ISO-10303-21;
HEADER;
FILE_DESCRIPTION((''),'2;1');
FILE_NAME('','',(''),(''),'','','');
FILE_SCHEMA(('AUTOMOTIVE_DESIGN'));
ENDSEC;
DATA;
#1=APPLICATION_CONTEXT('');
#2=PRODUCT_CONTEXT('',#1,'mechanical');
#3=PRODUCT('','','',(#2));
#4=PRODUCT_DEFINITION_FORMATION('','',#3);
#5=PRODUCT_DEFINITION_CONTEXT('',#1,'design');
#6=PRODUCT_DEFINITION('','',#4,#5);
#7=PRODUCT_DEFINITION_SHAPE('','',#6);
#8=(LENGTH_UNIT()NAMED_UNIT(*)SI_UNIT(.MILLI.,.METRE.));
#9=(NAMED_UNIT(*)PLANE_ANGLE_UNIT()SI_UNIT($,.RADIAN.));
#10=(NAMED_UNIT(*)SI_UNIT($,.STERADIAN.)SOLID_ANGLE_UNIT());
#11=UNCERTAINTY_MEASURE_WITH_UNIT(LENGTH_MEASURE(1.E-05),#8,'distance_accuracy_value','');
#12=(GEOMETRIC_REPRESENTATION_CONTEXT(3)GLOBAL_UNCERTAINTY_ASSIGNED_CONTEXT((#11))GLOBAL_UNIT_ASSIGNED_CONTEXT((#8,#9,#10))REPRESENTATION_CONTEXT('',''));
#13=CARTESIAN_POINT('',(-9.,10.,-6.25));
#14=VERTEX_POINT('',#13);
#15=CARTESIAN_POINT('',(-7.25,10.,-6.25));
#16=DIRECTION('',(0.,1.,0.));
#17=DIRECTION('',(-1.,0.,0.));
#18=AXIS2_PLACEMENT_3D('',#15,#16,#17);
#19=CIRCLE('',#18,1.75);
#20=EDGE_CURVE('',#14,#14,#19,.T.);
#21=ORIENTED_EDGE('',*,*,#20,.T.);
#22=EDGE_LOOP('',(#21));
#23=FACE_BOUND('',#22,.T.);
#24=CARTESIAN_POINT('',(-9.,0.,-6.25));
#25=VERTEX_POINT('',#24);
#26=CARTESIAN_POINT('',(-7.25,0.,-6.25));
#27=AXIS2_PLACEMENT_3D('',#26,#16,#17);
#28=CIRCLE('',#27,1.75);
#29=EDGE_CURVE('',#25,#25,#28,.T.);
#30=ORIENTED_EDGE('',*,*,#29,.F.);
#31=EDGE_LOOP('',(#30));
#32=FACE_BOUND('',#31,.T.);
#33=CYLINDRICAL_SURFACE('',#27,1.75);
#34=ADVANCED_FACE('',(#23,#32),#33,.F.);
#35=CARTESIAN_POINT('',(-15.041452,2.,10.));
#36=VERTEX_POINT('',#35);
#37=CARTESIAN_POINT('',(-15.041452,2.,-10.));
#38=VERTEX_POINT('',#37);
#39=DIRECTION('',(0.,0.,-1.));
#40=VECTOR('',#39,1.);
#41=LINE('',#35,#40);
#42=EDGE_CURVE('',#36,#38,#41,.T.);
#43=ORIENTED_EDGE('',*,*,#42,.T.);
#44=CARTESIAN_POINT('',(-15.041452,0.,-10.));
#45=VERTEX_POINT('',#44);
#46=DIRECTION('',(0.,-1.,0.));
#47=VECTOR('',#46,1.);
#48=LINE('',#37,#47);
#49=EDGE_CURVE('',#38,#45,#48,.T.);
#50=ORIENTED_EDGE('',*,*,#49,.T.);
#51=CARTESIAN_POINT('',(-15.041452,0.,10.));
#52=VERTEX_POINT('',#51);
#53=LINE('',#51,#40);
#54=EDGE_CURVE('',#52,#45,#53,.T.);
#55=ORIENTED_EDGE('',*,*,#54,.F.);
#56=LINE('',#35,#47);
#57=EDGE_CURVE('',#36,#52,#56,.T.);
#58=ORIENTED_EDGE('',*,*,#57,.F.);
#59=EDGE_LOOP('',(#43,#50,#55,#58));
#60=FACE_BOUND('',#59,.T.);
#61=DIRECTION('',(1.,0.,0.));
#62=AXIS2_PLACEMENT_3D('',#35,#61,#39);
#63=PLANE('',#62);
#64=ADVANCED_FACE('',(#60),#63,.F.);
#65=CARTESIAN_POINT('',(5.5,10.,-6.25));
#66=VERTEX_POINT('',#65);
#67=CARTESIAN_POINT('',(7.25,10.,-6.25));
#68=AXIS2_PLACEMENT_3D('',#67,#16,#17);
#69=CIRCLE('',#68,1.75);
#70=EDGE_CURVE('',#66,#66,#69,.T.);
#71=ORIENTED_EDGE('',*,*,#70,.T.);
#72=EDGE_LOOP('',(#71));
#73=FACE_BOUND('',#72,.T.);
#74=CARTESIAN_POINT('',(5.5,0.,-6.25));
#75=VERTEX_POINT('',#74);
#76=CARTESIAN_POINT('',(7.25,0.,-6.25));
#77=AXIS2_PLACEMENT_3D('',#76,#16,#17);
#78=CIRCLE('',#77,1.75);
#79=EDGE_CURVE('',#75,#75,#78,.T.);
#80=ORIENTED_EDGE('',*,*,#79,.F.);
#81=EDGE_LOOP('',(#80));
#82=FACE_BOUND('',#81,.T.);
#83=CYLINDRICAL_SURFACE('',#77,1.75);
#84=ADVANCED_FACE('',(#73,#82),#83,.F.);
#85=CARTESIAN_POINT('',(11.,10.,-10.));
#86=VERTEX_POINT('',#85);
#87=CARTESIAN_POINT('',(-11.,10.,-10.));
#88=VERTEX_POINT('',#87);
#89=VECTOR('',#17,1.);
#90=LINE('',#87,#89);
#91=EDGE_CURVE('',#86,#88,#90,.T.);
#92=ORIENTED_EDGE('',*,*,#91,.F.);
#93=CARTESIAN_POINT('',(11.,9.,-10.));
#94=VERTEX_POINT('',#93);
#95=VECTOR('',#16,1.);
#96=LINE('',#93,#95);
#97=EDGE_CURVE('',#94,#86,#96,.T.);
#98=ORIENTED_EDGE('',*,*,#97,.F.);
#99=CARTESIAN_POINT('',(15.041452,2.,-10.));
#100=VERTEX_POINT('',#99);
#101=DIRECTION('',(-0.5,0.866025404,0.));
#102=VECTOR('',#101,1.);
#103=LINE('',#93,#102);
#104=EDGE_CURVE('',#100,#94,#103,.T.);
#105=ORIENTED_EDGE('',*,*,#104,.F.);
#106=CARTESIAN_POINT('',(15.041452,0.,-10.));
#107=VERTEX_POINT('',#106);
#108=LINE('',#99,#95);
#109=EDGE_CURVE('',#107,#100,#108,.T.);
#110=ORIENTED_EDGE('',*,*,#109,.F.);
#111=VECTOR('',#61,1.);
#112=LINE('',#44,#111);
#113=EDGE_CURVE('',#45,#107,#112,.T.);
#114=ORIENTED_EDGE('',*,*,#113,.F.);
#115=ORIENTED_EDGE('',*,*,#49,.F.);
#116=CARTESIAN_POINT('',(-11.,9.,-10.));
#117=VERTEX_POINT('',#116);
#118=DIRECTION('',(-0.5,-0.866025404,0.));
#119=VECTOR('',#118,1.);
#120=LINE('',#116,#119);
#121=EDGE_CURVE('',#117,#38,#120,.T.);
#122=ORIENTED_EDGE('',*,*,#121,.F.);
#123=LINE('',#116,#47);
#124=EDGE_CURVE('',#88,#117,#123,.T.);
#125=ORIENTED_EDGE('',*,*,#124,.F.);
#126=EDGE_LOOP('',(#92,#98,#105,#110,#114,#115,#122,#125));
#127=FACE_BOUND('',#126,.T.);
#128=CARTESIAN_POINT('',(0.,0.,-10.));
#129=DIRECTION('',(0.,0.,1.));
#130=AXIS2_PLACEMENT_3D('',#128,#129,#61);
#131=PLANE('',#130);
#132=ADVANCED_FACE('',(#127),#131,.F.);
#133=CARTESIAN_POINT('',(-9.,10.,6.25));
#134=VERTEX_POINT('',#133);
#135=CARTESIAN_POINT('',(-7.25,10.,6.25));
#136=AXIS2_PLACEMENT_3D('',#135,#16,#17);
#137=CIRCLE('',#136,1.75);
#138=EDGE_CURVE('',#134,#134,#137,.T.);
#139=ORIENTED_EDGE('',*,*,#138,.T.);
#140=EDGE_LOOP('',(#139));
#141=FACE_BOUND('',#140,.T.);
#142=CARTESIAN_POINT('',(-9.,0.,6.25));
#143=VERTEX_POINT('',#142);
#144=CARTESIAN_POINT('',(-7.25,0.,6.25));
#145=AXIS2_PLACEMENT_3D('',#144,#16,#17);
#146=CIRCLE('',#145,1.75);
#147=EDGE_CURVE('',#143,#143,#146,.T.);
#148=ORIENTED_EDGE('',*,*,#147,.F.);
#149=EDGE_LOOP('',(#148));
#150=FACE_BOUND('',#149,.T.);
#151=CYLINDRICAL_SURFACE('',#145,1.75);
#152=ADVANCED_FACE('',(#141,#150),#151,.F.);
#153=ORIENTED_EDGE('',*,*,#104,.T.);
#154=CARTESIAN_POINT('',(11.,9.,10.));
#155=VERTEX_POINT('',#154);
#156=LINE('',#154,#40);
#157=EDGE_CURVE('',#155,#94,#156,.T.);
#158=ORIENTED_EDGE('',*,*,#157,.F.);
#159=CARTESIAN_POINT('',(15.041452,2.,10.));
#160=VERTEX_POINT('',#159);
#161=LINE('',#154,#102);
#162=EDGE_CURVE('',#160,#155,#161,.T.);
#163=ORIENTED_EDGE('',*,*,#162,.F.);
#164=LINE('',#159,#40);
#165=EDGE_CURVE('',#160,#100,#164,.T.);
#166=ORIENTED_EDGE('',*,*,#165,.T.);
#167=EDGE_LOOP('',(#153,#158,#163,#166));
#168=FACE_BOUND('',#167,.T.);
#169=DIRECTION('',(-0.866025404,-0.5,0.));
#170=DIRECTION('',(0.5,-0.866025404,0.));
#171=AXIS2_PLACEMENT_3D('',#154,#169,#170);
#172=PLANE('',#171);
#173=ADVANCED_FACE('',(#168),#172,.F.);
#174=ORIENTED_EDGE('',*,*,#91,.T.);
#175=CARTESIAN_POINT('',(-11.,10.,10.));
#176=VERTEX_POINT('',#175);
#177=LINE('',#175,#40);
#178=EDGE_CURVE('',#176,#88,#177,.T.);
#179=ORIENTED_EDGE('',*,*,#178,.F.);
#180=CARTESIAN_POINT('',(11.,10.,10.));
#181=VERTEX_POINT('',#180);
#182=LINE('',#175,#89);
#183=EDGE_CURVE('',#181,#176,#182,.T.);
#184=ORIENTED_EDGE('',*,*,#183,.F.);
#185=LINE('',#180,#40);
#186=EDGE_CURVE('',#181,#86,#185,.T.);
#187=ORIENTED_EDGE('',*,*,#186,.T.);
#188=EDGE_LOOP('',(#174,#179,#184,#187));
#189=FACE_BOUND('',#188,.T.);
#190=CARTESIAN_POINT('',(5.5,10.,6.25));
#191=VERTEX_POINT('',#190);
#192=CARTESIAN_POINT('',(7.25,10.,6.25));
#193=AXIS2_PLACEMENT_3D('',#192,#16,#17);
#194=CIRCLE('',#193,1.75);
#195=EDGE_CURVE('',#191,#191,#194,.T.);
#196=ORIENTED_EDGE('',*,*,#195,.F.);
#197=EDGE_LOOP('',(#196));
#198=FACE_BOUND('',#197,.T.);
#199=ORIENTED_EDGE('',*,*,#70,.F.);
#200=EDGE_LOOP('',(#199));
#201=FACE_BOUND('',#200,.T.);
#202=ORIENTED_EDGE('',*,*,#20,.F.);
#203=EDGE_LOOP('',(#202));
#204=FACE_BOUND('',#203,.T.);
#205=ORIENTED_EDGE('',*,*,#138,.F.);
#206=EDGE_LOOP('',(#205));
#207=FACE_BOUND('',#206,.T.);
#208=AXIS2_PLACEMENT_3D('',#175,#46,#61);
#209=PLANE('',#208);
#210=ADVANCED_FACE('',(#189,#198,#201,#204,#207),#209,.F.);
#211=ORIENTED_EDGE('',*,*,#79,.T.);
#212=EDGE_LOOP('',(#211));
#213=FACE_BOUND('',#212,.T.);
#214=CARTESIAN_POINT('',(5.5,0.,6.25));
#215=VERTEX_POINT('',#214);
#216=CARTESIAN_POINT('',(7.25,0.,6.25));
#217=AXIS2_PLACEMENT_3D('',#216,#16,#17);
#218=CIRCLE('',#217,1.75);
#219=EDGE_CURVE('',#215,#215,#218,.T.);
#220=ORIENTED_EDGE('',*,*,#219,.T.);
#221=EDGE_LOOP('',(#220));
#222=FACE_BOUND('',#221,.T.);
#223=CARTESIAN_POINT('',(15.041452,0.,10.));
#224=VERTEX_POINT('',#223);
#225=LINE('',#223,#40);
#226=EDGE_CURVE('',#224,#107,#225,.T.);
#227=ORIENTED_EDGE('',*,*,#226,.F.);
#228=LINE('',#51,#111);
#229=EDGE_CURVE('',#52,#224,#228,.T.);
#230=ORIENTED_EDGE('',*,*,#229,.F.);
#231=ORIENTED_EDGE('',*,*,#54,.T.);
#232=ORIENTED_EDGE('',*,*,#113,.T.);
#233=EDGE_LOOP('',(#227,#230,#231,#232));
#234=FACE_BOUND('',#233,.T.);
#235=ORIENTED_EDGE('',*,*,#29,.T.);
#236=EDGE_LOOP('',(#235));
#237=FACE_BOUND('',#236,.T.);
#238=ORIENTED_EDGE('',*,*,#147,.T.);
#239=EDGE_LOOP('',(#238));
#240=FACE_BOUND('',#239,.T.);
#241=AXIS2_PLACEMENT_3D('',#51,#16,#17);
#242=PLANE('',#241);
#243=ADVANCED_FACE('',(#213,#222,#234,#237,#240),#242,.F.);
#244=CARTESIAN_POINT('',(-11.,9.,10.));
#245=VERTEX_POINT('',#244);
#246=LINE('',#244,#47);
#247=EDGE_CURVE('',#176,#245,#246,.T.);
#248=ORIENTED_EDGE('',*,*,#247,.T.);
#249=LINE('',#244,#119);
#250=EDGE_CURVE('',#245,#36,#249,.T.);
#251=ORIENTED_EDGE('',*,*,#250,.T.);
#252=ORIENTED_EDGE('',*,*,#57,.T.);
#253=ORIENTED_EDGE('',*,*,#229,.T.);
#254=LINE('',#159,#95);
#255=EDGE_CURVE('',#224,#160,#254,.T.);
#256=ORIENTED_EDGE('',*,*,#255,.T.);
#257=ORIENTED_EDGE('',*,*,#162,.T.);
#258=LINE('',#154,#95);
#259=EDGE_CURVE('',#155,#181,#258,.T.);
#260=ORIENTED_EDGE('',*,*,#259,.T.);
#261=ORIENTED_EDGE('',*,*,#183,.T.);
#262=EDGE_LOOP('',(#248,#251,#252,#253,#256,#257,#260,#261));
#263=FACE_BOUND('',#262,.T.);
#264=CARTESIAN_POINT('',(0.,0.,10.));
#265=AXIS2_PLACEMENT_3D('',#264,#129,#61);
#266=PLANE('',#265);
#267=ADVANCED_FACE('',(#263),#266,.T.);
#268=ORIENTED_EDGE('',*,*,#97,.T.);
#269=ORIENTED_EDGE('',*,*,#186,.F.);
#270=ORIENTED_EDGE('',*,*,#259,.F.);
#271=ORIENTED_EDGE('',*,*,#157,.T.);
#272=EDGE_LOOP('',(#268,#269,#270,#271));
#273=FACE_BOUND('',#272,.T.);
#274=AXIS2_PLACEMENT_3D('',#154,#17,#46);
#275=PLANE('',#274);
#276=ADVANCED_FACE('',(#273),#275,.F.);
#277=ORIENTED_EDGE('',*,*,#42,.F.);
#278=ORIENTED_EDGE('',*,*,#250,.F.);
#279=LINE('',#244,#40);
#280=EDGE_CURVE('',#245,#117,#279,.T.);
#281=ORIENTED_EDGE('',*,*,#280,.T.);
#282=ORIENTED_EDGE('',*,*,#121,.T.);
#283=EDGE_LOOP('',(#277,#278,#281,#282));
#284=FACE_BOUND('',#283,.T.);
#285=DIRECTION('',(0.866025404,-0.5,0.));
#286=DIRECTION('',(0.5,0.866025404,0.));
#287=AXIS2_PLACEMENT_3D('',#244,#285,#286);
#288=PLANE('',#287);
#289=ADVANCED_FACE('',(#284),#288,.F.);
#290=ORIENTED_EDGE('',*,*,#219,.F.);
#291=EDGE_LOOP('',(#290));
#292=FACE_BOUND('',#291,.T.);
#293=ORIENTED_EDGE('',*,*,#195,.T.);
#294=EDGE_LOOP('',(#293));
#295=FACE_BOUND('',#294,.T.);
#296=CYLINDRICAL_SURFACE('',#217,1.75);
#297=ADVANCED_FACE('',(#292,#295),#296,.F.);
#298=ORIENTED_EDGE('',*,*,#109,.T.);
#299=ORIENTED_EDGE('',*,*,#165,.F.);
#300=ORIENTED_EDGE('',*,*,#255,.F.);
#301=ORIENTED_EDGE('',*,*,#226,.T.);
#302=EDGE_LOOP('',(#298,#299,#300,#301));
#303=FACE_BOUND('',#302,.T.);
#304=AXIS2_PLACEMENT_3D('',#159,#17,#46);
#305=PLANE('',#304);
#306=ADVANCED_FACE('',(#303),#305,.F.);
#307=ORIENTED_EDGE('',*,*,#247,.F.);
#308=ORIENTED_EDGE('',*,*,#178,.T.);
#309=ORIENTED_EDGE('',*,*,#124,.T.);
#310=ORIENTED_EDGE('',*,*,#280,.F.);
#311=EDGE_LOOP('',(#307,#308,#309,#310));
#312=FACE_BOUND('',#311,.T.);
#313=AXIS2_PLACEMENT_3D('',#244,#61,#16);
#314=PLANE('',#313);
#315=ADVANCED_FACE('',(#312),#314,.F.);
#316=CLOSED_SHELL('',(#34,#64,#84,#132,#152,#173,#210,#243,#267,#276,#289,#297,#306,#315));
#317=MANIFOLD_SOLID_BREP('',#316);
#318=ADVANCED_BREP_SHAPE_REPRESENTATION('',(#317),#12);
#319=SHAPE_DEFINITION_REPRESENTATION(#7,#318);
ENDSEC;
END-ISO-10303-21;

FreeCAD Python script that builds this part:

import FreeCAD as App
import Part
import Sketcher

V = App.Vector
Q = App.Units.Quantity


def add_polygon(sketch, points):
    """Adds a closed chain of lines whose ends are joined by coincident constraints."""
    first, n = sketch.GeometryCount, len(points)
    for a, b in zip(points, points[1:] + points[:1]):
        sketch.addGeometry(Part.LineSegment(App.Vector(*a, 0), App.Vector(*b, 0)), False)
    for i in range(n):
        sketch.addConstraint(Sketcher.Constraint("Coincident", first + i, 2, first + (i + 1) % n, 1))

doc = App.newDocument("Part")
body = doc.addObject("PartDesign::Body", "Body")

sketch1 = body.newObject("Sketcher::SketchObject", "Sketch")
sketch1.AttachmentSupport = (doc.getObject("XY_Plane"), [""])
sketch1.MapMode = "FlatFace"
add_polygon(sketch1, [(11, 9), (11, 10), (-11, 10), (-11, 9), (-15.041452, 2), (-15.041452, 0), (15.041452, 0), (15.041452, 2)])
sketch1.addConstraint([
    Sketcher.Constraint("Vertical", 0),
    Sketcher.Constraint("Horizontal", 1),
    Sketcher.Constraint("Vertical", 2),
    Sketcher.Constraint("Vertical", 4),
    Sketcher.Constraint("Horizontal", 5),
    Sketcher.Constraint("Vertical", 6),
    Sketcher.Constraint("Symmetric", 4, 2, 5, 2, -1, 1),
    Sketcher.Constraint("Symmetric", 2, 2, 7, 2, -2),
    Sketcher.Constraint("Horizontal", 3, 2, 6, 2),
    Sketcher.Constraint("DistanceX", 1, 2, 1, 1, Q("22 mm")),
    Sketcher.Constraint("DistanceY", 0, 1, 0, 2, Q("1 mm")),
    Sketcher.Constraint("DistanceY", 4, 2, 4, 1, Q("2 mm")),
    Sketcher.Constraint("Angle", 3, Q("-120 deg")),
    Sketcher.Constraint("DistanceY", -1, 1, 0, 2, Q("10 mm")),
])
pad1 = body.newObject("PartDesign::Pad", "Pad")
pad1.Profile = sketch1
pad1.Length = 20
pad1.Midplane = True

sketch2 = body.newObject("Sketcher::SketchObject", "Sketch001")
sketch2.AttachmentSupport = (doc.getObject("XZ_Plane"), [""])
sketch2.MapMode = "FlatFace"
sketch2.AttachmentOffset = App.Placement(V(0, 0, -10), App.Rotation())
sketch2.addGeometry([
    Part.Circle(V(7.25, -6.25, 0), V(0, 0, 1), 1.75),
    Part.Circle(V(-7.25, -6.25, 0), V(0, 0, 1), 1.75),
    Part.Circle(V(-7.25, 6.25, 0), V(0, 0, 1), 1.75),
    Part.Circle(V(7.25, 6.25, 0), V(0, 0, 1), 1.75),
], False)
sketch2.addConstraint([
    Sketcher.Constraint("Equal", 0, 1),
    Sketcher.Constraint("Equal", 1, 2),
    Sketcher.Constraint("Equal", 2, 3),
    Sketcher.Constraint("Symmetric", 0, 3, 2, 3, -1, 1),
    Sketcher.Constraint("Symmetric", 1, 3, 3, 3, -1, 1),
    Sketcher.Constraint("Symmetric", 0, 3, 1, 3, -2),
    Sketcher.Constraint("Diameter", 0, Q("3.5 mm")),
    Sketcher.Constraint("DistanceX", 1, 3, 0, 3, Q("14.5 mm")),
    Sketcher.Constraint("DistanceY", 1, 3, 2, 3, Q("12.5 mm")),
])
pocket1 = body.newObject("PartDesign::Pocket", "Pocket")
pocket1.Profile = sketch2
pocket1.Type = "ThroughAll"
pocket1.Reversed = True

doc.recompute()
